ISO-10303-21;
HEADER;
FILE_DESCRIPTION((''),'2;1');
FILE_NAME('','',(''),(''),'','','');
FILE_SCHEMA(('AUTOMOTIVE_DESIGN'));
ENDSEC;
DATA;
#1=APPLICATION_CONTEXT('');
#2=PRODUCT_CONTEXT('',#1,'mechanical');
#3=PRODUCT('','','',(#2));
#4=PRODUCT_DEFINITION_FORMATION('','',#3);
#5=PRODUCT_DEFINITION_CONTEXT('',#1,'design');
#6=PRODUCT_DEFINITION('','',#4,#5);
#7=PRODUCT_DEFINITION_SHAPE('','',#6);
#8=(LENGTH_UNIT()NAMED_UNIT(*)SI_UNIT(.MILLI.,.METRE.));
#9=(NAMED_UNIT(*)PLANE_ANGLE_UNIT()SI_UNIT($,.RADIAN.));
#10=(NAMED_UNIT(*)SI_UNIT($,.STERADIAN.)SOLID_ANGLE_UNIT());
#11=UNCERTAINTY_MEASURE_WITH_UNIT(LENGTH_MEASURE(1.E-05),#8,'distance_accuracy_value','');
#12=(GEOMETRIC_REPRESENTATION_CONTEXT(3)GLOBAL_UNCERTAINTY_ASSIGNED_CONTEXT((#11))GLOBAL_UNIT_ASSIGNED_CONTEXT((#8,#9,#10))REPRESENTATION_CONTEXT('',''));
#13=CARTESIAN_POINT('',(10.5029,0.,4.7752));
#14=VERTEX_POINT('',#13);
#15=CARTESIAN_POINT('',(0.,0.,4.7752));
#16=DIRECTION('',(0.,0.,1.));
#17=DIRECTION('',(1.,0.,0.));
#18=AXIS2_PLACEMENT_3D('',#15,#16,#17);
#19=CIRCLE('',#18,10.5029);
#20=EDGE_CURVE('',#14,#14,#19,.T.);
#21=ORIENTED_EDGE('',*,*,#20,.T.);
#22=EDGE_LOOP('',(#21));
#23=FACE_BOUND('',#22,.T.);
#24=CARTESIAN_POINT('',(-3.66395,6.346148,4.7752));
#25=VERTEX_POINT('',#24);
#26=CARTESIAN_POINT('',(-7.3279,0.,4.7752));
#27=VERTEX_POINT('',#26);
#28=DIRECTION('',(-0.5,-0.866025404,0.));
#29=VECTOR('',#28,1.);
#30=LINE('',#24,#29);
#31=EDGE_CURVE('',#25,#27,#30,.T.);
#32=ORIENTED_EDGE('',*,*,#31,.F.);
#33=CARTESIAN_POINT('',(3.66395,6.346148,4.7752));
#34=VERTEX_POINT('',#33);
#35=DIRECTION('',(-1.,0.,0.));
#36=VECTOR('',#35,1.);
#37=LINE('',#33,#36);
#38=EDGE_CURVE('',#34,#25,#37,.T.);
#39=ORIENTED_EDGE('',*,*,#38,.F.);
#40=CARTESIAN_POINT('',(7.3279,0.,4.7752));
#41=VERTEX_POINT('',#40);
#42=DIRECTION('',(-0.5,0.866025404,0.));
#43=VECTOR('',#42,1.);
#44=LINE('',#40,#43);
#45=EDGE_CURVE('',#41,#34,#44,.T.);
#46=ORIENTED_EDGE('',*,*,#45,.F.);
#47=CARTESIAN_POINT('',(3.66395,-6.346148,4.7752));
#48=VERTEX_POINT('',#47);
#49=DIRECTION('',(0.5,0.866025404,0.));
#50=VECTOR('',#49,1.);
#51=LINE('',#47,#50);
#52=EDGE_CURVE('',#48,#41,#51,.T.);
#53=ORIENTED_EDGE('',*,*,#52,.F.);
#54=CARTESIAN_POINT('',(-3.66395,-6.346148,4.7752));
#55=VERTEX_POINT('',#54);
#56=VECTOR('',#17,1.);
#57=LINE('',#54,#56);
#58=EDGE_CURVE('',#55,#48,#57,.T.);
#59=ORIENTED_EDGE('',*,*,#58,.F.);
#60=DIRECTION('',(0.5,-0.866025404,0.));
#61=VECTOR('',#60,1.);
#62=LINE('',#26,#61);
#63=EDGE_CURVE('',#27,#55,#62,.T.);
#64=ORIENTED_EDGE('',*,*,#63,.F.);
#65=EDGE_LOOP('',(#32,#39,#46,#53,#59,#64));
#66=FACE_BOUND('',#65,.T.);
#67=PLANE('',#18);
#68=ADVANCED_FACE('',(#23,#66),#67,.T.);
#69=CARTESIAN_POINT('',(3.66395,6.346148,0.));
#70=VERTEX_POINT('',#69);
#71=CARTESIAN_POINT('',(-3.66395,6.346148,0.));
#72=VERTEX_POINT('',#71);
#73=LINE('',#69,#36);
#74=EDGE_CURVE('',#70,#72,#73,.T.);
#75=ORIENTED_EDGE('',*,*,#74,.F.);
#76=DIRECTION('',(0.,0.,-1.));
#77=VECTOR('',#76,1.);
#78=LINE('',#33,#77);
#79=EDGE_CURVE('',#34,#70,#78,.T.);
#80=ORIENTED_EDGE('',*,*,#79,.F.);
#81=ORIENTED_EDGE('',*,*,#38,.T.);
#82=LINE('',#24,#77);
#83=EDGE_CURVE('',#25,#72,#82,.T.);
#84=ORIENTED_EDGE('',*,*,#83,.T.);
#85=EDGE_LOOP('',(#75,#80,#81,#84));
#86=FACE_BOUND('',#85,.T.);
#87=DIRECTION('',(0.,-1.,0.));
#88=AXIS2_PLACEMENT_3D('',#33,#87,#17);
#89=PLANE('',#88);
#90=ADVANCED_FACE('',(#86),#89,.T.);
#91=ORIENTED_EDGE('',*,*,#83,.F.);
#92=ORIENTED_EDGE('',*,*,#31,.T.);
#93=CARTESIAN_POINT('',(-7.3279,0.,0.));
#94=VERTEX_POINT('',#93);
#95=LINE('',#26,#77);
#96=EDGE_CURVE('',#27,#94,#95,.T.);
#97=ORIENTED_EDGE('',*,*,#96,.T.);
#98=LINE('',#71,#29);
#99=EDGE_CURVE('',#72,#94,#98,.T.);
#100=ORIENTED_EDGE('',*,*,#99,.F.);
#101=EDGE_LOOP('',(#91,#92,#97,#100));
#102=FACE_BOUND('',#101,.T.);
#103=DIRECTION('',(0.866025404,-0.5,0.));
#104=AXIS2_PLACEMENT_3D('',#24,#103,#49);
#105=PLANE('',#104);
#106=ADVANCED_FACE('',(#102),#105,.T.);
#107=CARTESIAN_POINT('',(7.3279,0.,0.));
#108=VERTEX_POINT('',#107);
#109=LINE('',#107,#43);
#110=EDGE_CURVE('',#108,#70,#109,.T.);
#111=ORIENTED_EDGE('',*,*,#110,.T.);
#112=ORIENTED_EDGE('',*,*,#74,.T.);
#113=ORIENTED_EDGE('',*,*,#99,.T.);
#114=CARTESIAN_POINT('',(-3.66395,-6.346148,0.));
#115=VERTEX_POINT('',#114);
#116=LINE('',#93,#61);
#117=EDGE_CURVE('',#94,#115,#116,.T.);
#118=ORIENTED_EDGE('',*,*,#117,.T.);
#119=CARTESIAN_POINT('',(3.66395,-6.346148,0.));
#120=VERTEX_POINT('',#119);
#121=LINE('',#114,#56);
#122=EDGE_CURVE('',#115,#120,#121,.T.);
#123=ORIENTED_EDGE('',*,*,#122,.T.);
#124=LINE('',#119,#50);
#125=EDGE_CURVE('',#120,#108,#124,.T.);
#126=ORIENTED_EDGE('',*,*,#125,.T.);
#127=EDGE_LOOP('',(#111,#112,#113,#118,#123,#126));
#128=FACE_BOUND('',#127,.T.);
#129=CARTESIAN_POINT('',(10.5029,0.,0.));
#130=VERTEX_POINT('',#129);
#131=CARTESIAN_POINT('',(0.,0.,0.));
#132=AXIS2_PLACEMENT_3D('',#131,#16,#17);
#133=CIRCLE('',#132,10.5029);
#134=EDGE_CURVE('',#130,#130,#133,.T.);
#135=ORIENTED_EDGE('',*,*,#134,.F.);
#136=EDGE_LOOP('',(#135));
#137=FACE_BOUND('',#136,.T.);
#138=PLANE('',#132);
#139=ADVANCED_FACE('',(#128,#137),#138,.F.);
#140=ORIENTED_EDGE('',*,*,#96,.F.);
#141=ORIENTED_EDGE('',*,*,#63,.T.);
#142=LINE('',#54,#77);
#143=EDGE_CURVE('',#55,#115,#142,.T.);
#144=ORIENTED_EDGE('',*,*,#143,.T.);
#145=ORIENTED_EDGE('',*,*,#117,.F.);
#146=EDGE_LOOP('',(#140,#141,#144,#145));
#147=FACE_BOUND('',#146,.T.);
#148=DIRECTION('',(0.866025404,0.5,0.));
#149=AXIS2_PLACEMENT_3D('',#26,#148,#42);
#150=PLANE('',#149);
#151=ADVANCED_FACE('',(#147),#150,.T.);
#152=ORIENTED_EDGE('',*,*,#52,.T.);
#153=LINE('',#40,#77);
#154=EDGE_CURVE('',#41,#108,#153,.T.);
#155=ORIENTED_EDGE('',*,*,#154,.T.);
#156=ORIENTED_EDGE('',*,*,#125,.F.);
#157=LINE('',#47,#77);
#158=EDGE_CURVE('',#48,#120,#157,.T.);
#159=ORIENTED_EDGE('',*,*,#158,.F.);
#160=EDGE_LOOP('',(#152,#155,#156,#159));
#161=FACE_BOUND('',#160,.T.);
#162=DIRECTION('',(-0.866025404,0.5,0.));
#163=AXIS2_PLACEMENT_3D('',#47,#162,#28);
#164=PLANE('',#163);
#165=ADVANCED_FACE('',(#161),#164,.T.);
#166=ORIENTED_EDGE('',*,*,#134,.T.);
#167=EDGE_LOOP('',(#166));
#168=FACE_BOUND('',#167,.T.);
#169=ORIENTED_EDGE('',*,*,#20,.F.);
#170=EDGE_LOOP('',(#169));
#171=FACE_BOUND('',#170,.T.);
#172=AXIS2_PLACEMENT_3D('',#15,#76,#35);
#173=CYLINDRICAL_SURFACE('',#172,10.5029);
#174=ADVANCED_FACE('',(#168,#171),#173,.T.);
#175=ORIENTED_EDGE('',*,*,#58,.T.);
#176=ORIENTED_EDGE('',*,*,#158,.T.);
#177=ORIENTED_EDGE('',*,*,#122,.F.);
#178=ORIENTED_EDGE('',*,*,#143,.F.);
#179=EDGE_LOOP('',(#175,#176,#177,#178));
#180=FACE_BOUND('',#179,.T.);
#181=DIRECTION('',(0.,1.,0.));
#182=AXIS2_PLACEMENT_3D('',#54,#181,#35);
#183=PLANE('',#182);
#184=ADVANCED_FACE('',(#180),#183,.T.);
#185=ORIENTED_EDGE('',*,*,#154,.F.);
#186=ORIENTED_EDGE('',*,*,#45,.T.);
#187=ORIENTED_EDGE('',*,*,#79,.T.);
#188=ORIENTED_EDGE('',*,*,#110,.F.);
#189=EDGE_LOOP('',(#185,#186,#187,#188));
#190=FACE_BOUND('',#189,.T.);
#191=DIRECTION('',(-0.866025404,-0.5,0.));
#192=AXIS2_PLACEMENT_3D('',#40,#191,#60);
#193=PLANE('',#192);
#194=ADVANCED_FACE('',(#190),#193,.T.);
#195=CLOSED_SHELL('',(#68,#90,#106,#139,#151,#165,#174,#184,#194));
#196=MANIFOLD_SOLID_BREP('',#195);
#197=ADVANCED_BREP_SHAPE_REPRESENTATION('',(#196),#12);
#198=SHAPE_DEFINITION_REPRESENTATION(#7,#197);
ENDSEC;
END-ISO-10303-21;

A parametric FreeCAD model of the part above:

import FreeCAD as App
import Part
import Sketcher

V = App.Vector
Q = App.Units.Quantity

doc = App.newDocument("Part")
body = doc.addObject("PartDesign::Body", "Body")

# Sketch on XY plane
sketch1 = body.newObject("Sketcher::SketchObject", "Sketch")
sketch1.AttachmentSupport = (doc.getObject("XY_Plane"), [""])
sketch1.MapMode = "FlatFace"
sketch1.addGeometry([
    Part.Circle(V(0, 0, 0), V(0, 0, 1), 11),  # 0
    Part.LineSegment(V(-4, -6, 0), V(-7, 0, 0)),  # 1
    Part.LineSegment(V(-7, 0, 0), V(-4, 6, 0)),  # 2
    Part.LineSegment(V(-4, 6, 0), V(4, 6, 0)),  # 3
    Part.LineSegment(V(4, 6, 0), V(7, 0, 0)),  # 4
    Part.LineSegment(V(7, 0, 0), V(4, -6, 0)),  # 5
    Part.LineSegment(V(4, -6, 0), V(-4, -6, 0)),  # 6
], False)
sketch1.addConstraint([
    Sketcher.Constraint("Coincident", 1, 2, 2, 1),
    Sketcher.Constraint("Coincident", 2, 2, 3, 1),
    Sketcher.Constraint("Coincident", 3, 2, 4, 1),
    Sketcher.Constraint("Coincident", 4, 2, 5, 1),
    Sketcher.Constraint("Coincident", 5, 2, 6, 1),
    Sketcher.Constraint("Coincident", 6, 2, 1, 1),
    Sketcher.Constraint("Horizontal", 3),
    Sketcher.Constraint("Horizontal", 6),
    Sketcher.Constraint("Coincident", 0, 3, -1, 1),
    Sketcher.Constraint("Symmetric", 1, 2, 4, 2, -1, 1),
    Sketcher.Constraint("Symmetric", 2, 2, 5, 2, -1, 1),
    Sketcher.Constraint("PointOnObject", 1, 2, -1),
    Sketcher.Constraint("Parallel", 1, 4),
    Sketcher.Constraint("Vertical", 3, 2, 5, 2),
    Sketcher.Constraint("Diameter", 0, Q("0.827 in")),
    Sketcher.Constraint("Angle", 1, Q("120 deg")),
    Sketcher.Constraint("DistanceX", 3, 1, 3, 2, Q("0.2885 in")),
    Sketcher.Constraint("DistanceX", 1, 2, 4, 2, Q("0.577 in")),
])
pad1 = body.newObject("PartDesign::Pad", "Pad")
pad1.Profile = sketch1
pad1.Length = Q("0.188 in")

doc.recompute()
